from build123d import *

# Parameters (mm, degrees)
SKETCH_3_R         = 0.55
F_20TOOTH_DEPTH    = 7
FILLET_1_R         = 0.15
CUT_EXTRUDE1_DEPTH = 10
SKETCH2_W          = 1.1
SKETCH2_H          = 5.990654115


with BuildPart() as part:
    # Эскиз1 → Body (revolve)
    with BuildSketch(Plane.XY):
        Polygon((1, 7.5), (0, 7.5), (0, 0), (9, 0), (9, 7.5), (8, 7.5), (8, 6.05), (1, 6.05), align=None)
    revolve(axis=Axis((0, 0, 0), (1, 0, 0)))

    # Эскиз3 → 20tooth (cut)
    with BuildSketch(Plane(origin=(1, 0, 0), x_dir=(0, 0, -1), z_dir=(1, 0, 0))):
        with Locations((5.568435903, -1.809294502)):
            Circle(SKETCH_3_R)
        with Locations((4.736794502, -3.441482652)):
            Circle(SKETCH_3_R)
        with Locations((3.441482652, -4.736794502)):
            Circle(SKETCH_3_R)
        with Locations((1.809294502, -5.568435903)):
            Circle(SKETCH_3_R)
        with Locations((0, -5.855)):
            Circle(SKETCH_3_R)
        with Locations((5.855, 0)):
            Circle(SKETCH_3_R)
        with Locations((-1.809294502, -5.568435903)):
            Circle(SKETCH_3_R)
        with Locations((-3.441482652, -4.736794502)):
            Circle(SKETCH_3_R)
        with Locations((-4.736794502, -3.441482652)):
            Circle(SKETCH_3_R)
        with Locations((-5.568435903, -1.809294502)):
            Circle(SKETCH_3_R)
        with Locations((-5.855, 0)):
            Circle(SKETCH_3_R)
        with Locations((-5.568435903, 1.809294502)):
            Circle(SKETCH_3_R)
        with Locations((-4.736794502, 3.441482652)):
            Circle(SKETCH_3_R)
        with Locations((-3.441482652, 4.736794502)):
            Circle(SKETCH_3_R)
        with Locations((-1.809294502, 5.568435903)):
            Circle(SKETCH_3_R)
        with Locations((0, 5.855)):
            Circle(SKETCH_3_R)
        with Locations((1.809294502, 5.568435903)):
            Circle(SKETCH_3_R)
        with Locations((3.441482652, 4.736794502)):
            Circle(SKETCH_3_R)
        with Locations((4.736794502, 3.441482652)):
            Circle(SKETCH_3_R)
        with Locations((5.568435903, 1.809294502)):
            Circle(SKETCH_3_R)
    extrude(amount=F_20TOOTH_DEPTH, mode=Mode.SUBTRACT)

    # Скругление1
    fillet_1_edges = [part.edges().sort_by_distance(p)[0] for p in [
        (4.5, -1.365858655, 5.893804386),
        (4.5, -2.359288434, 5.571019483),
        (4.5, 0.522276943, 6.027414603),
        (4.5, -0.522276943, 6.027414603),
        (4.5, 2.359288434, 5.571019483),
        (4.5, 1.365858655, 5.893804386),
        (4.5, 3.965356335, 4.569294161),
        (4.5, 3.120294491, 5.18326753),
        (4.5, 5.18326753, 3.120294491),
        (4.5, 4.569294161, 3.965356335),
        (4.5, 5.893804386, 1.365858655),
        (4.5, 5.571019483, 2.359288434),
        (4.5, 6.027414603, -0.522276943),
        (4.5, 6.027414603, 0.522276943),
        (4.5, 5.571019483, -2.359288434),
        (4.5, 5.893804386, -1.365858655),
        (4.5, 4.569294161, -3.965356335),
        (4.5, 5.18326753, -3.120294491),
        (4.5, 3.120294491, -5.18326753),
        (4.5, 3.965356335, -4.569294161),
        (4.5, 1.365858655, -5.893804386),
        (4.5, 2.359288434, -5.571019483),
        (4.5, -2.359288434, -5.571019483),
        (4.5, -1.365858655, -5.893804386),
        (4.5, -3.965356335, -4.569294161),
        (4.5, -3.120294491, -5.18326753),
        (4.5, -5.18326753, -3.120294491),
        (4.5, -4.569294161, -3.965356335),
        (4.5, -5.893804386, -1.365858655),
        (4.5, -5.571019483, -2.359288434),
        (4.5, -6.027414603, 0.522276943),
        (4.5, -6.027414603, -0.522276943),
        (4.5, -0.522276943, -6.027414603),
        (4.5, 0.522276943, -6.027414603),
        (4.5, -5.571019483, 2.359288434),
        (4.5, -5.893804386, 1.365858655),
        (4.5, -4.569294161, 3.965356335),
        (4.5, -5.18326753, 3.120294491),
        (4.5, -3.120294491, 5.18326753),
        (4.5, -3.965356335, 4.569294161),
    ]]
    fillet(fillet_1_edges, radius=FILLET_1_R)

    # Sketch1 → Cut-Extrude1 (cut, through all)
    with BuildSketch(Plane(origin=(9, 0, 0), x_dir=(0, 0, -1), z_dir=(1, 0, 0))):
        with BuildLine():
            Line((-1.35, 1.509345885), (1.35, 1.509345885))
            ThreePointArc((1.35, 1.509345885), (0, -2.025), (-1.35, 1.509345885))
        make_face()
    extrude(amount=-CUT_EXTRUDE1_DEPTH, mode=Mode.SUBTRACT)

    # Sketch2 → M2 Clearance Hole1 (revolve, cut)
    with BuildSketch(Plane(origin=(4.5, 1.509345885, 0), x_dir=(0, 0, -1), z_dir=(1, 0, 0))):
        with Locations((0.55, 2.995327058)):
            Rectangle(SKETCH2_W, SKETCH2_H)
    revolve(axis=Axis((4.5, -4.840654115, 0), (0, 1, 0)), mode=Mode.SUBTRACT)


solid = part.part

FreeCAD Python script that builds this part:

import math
import FreeCAD as App
import Part
import Sketcher
from FreeCAD import Vector
Q = App.Units.Quantity


def edges_at(feature, points):
    """Names of the edges that pass closest to the given points."""
    edges = feature.Shape.Edges
    near = lambda p: min(range(len(edges)), key=lambda i: edges[i].distToShape(Part.Vertex(*p))[0])
    return sorted({f"Edge{near(p) + 1}" for p in points})

doc = App.newDocument("Part")
body = doc.addObject("PartDesign::Body", "Body")

sketch1 = body.newObject("Sketcher::SketchObject", "Sketch")
sketch1.AttachmentSupport = (doc.getObject("XY_Plane"), [""])
sketch1.MapMode = "FlatFace"
sketch1.addGeometry([
    Part.LineSegment(Vector(1, 7.5, 0), Vector(0, 7.5, 0)),
    Part.LineSegment(Vector(0, 7.5, 0), Vector(0, 0, 0)),
    Part.LineSegment(Vector(0, 0, 0), Vector(9, 0, 0)),
    Part.LineSegment(Vector(9, 0, 0), Vector(9, 7.5, 0)),
    Part.LineSegment(Vector(9, 7.5, 0), Vector(8, 7.5, 0)),
    Part.LineSegment(Vector(8, 7.5, 0), Vector(8, 6, 0)),
    Part.LineSegment(Vector(8, 6, 0), Vector(1, 6, 0)),
    Part.LineSegment(Vector(1, 6, 0), Vector(1, 7.5, 0)),
], False)
sketch1.addConstraint([
    Sketcher.Constraint("Coincident", 0, 2, 1, 1),
    Sketcher.Constraint("Coincident", 1, 2, 2, 1),
    Sketcher.Constraint("Coincident", 2, 2, 3, 1),
    Sketcher.Constraint("Coincident", 3, 2, 4, 1),
    Sketcher.Constraint("Coincident", 4, 2, 5, 1),
    Sketcher.Constraint("Coincident", 5, 2, 6, 1),
    Sketcher.Constraint("Coincident", 6, 2, 7, 1),
    Sketcher.Constraint("Coincident", 7, 2, 0, 1),
    Sketcher.Constraint("Horizontal", 0),
    Sketcher.Constraint("Vertical", 1),
    Sketcher.Constraint("Horizontal", 2),
    Sketcher.Constraint("Vertical", 3),
    Sketcher.Constraint("Horizontal", 4),
    Sketcher.Constraint("Vertical", 5),
    Sketcher.Constraint("Horizontal", 6),
    Sketcher.Constraint("Vertical", 7),
    Sketcher.Constraint("Coincident", 1, 2, -1, 1),
    Sketcher.Constraint("Horizontal", 0, 2, 3, 2),
    Sketcher.Constraint("Equal", 0, 4),
    Sketcher.Constraint("DistanceX", 0, 2, 0, 1, Q("1 mm")),
    Sketcher.Constraint("DistanceX", 2, 1, 2, 2, Q("9 mm")),
    Sketcher.Constraint("DistanceY", 1, 2, 1, 1, Q("7.5 mm")),
    Sketcher.Constraint("DistanceY", 5, 2, 5, 1, Q("1.45 mm")),
])
revolution = body.newObject("PartDesign::Revolution", "Revolution")
revolution.Profile = sketch1
revolution.ReferenceAxis = (sketch1, ["H_Axis"])
revolution.Angle = 360

sketch2 = body.newObject("Sketcher::SketchObject", "Sketch001")
sketch2.AttachmentSupport = (doc.getObject("YZ_Plane"), [""])
sketch2.MapMode = "FlatFace"
sketch2.AttachmentOffset = App.Placement(Vector(0, 0, 1), App.Rotation())
sketch2.addGeometry([
    Part.Circle(Vector(-1.8, -5.6, 0), Vector(0, 0, 1), 0.6),
    Part.Circle(Vector(-3.4, -4.7, 0), Vector(0, 0, 1), 0.6),
    Part.Circle(Vector(-4.7, -3.4, 0), Vector(0, 0, 1), 0.6),
    Part.Circle(Vector(-5.6, -1.8, 0), Vector(0, 0, 1), 0.6),
    Part.Circle(Vector(-5.9, 0, 0), Vector(0, 0, 1), 0.6),
    Part.Circle(Vector(0, -5.9, 0), Vector(0, 0, 1), 0.6),
    Part.Circle(Vector(-5.6, 1.8, 0), Vector(0, 0, 1), 0.6),
    Part.Circle(Vector(-4.7, 3.4, 0), Vector(0, 0, 1), 0.6),
    Part.Circle(Vector(-3.4, 4.7, 0), Vector(0, 0, 1), 0.6),
    Part.Circle(Vector(-1.8, 5.6, 0), Vector(0, 0, 1), 0.6),
    Part.Circle(Vector(0, 5.9, 0), Vector(0, 0, 1), 0.6),
    Part.Circle(Vector(1.8, 5.6, 0), Vector(0, 0, 1), 0.6),
    Part.Circle(Vector(3.4, 4.7, 0), Vector(0, 0, 1), 0.6),
    Part.Circle(Vector(4.7, 3.4, 0), Vector(0, 0, 1), 0.6),
    Part.Circle(Vector(5.6, 1.8, 0), Vector(0, 0, 1), 0.6),
    Part.Circle(Vector(5.9, 0, 0), Vector(0, 0, 1), 0.6),
    Part.Circle(Vector(5.6, -1.8, 0), Vector(0, 0, 1), 0.6),
    Part.Circle(Vector(4.7, -3.4, 0), Vector(0, 0, 1), 0.6),
    Part.Circle(Vector(3.4, -4.7, 0), Vector(0, 0, 1), 0.6),
    Part.Circle(Vector(1.8, -5.6, 0), Vector(0, 0, 1), 0.6),
], False)
sketch2.addConstraint([
    Sketcher.Constraint("Equal", 0, 1),
    Sketcher.Constraint("Equal", 1, 2),
    Sketcher.Constraint("Equal", 2, 3),
    Sketcher.Constraint("Equal", 3, 4),
    Sketcher.Constraint("Equal", 4, 5),
    Sketcher.Constraint("Equal", 5, 6),
    Sketcher.Constraint("Equal", 6, 7),
    Sketcher.Constraint("Equal", 7, 8),
    Sketcher.Constraint("Equal", 8, 9),
    Sketcher.Constraint("Equal", 9, 10),
    Sketcher.Constraint("Equal", 10, 11),
    Sketcher.Constraint("Equal", 11, 12),
    Sketcher.Constraint("Equal", 12, 13),
    Sketcher.Constraint("Equal", 13, 14),
    Sketcher.Constraint("Equal", 14, 15),
    Sketcher.Constraint("Equal", 15, 16),
    Sketcher.Constraint("Equal", 16, 17),
    Sketcher.Constraint("Equal", 17, 18),
    Sketcher.Constraint("Equal", 18, 19),
    Sketcher.Constraint("Symmetric", 5, 3, 10, 3, -1, 1),
    Sketcher.Constraint("Symmetric", 0, 3, 11, 3, -1, 1),
    Sketcher.Constraint("Symmetric", 1, 3, 12, 3, -1, 1),
    Sketcher.Constraint("Symmetric", 2, 3, 13, 3, -1, 1),
    Sketcher.Constraint("Symmetric", 3, 3, 14, 3, -1, 1),
    Sketcher.Constraint("Symmetric", 4, 3, 15, 3, -1, 1),
    Sketcher.Constraint("Symmetric", 6, 3, 16, 3, -1, 1),
    Sketcher.Constraint("Symmetric", 7, 3, 17, 3, -1, 1),
    Sketcher.Constraint("Symmetric", 8, 3, 18, 3, -1, 1),
    Sketcher.Constraint("Symmetric", 9, 3, 19, 3, -1, 1),
    Sketcher.Constraint("Symmetric", 9, 3, 11, 3, -2),
    Sketcher.Constraint("Symmetric", 8, 3, 12, 3, -2),
    Sketcher.Constraint("Symmetric", 7, 3, 13, 3, -2),
    Sketcher.Constraint("Symmetric", 6, 3, 14, 3, -2),
    Sketcher.Constraint("PointOnObject", 4, 3, -1),
    Sketcher.Constraint("PointOnObject", 5, 3, -2),
    Sketcher.Constraint("Diameter", 0, Q("1.1 mm")),
    Sketcher.Constraint("DistanceX", 4, 3, -1, 1, Q("5.855 mm")),
    Sketcher.Constraint("DistanceY", 5, 3, -1, 1, Q("5.855 mm")),
    Sketcher.Constraint("DistanceX", 2, 3, 0, 3, Q("2.9275 mm")),
    Sketcher.Constraint("DistanceY", 1, 3, 3, 3, Q("2.9275 mm")),
    Sketcher.Constraint("DistanceX", 1, 3, 0, 3, Q("1.632188 mm")),
    Sketcher.Constraint("DistanceY", 0, 3, 1, 3, Q("0.831641 mm")),
    Sketcher.Constraint("DistanceY", 1, 3, 2, 3, Q("1.295312 mm")),
    Sketcher.Constraint("DistanceX", 3, 3, 2, 3, Q("0.831641 mm")),
    Sketcher.Constraint("DistanceY", 3, 3, 6, 3, Q("3.618589 mm")),
    Sketcher.Constraint("DistanceX", 9, 3, 11, 3, Q("3.618589 mm")),
])
pocket1 = body.newObject("PartDesign::Pocket", "Pocket")
pocket1.Profile = sketch2
pocket1.Length = 7
pocket1.Reversed = True
doc.recompute()

fillet = body.newObject("PartDesign::Fillet", "Fillet")
fillet.Base = (pocket1, edges_at(pocket1, [
    (4.5, -1.366, 5.894),
    (4.5, -2.359, 5.571),
    (4.5, 0.522, 6.027),
    (4.5, -0.522, 6.027),
    (4.5, 2.359, 5.571),
    (4.5, 1.366, 5.894),
    (4.5, 3.965, 4.569),
    (4.5, 3.12, 5.183),
    (4.5, 5.183, 3.12),
    (4.5, 4.569, 3.965),
    (4.5, 5.894, 1.366),
    (4.5, 5.571, 2.359),
    (4.5, 6.027, -0.522),
    (4.5, 6.027, 0.522),
    (4.5, 5.571, -2.359),
    (4.5, 5.894, -1.366),
    (4.5, 4.569, -3.965),
    (4.5, 5.183, -3.12),
    (4.5, 3.12, -5.183),
    (4.5, 3.965, -4.569),
    (4.5, 1.366, -5.894),
    (4.5, 2.359, -5.571),
    (4.5, -2.359, -5.571),
    (4.5, -1.366, -5.894),
    (4.5, -3.965, -4.569),
    (4.5, -3.12, -5.183),
    (4.5, -5.183, -3.12),
    (4.5, -4.569, -3.965),
    (4.5, -5.894, -1.366),
    (4.5, -5.571, -2.359),
    (4.5, -6.027, 0.522),
    (4.5, -6.027, -0.522),
    (4.5, -0.522, -6.027),
    (4.5, 0.522, -6.027),
    (4.5, -5.571, 2.359),
    (4.5, -5.894, 1.366),
    (4.5, -4.569, 3.965),
    (4.5, -5.183, 3.12),
    (4.5, -3.12, 5.183),
    (4.5, -3.965, 4.569),
]))
fillet.Radius = 0.15

sketch3 = body.newObject("Sketcher::SketchObject", "Sketch002")
sketch3.AttachmentSupport = (doc.getObject("YZ_Plane"), [""])
sketch3.MapMode = "FlatFace"
sketch3.AttachmentOffset = App.Placement(Vector(0, 0, 9), App.Rotation())
sketch3.addGeometry([
    Part.LineSegment(Vector(1.5, -1.4, 0), Vector(1.5, 1.4, 0)),
    Part.ArcOfCircle(Part.Circle(Vector(0, 0, 0), Vector(0, 0, 1), 2), math.radians(42), math.radians(318)),
], False)
sketch3.addConstraint([
    Sketcher.Constraint("Coincident", 0, 1, 1, 2),
    Sketcher.Constraint("Coincident", 1, 1, 0, 2),
    Sketcher.Constraint("Vertical", 0),
    Sketcher.Constraint("Coincident", 1, 3, -1, 1),
    Sketcher.Constraint("DistanceY", 0, 1, 0, 2, Q("2.7 mm")),
    Sketcher.Constraint("Radius", 1, Q("2.025 mm")),
])
pocket2 = body.newObject("PartDesign::Pocket", "Pocket001")
pocket2.Profile = sketch3
pocket2.Type = "ThroughAll"

sketch4 = body.newObject("Sketcher::SketchObject", "Sketch003")
sketch4.AttachmentSupport = (doc.getObject("YZ_Plane"), [""])
sketch4.MapMode = "FlatFace"
sketch4.AttachmentOffset = App.Placement(Vector(0, 0, 4.5), App.Rotation())
sketch4.addGeometry([
    Part.LineSegment(Vector(7.5, 0, 0), Vector(1.5, 0, 0)),
    Part.LineSegment(Vector(1.5, 0, 0), Vector(1.5, -1.1, 0)),
    Part.LineSegment(Vector(1.5, -1.1, 0), Vector(7.5, -1.1, 0)),
    Part.LineSegment(Vector(7.5, -1.1, 0), Vector(7.5, 0, 0)),
], False)
sketch4.addConstraint([
    Sketcher.Constraint("Coincident", 0, 2, 1, 1),
    Sketcher.Constraint("Coincident", 1, 2, 2, 1),
    Sketcher.Constraint("Coincident", 2, 2, 3, 1),
    Sketcher.Constraint("Coincident", 3, 2, 0, 1),
    Sketcher.Constraint("Horizontal", 0),
    Sketcher.Constraint("Vertical", 1),
    Sketcher.Constraint("Horizontal", 2),
    Sketcher.Constraint("Vertical", 3),
    Sketcher.Constraint("PointOnObject", 0, 2, -1),
    Sketcher.Constraint("DistanceY", 1, 2, 1, 1, Q("1.1 mm")),
    Sketcher.Constraint("DistanceX", -1, 1, 2, 2, Q("7.5 mm")),
    Sketcher.Constraint("DistanceX", 0, 2, 0, 1, Q("5.990654 mm")),
])
groove = body.newObject("PartDesign::Groove", "Groove")
groove.Profile = sketch4
groove.ReferenceAxis = (sketch4, ["H_Axis"])
groove.Angle = 360

doc.recompute()
